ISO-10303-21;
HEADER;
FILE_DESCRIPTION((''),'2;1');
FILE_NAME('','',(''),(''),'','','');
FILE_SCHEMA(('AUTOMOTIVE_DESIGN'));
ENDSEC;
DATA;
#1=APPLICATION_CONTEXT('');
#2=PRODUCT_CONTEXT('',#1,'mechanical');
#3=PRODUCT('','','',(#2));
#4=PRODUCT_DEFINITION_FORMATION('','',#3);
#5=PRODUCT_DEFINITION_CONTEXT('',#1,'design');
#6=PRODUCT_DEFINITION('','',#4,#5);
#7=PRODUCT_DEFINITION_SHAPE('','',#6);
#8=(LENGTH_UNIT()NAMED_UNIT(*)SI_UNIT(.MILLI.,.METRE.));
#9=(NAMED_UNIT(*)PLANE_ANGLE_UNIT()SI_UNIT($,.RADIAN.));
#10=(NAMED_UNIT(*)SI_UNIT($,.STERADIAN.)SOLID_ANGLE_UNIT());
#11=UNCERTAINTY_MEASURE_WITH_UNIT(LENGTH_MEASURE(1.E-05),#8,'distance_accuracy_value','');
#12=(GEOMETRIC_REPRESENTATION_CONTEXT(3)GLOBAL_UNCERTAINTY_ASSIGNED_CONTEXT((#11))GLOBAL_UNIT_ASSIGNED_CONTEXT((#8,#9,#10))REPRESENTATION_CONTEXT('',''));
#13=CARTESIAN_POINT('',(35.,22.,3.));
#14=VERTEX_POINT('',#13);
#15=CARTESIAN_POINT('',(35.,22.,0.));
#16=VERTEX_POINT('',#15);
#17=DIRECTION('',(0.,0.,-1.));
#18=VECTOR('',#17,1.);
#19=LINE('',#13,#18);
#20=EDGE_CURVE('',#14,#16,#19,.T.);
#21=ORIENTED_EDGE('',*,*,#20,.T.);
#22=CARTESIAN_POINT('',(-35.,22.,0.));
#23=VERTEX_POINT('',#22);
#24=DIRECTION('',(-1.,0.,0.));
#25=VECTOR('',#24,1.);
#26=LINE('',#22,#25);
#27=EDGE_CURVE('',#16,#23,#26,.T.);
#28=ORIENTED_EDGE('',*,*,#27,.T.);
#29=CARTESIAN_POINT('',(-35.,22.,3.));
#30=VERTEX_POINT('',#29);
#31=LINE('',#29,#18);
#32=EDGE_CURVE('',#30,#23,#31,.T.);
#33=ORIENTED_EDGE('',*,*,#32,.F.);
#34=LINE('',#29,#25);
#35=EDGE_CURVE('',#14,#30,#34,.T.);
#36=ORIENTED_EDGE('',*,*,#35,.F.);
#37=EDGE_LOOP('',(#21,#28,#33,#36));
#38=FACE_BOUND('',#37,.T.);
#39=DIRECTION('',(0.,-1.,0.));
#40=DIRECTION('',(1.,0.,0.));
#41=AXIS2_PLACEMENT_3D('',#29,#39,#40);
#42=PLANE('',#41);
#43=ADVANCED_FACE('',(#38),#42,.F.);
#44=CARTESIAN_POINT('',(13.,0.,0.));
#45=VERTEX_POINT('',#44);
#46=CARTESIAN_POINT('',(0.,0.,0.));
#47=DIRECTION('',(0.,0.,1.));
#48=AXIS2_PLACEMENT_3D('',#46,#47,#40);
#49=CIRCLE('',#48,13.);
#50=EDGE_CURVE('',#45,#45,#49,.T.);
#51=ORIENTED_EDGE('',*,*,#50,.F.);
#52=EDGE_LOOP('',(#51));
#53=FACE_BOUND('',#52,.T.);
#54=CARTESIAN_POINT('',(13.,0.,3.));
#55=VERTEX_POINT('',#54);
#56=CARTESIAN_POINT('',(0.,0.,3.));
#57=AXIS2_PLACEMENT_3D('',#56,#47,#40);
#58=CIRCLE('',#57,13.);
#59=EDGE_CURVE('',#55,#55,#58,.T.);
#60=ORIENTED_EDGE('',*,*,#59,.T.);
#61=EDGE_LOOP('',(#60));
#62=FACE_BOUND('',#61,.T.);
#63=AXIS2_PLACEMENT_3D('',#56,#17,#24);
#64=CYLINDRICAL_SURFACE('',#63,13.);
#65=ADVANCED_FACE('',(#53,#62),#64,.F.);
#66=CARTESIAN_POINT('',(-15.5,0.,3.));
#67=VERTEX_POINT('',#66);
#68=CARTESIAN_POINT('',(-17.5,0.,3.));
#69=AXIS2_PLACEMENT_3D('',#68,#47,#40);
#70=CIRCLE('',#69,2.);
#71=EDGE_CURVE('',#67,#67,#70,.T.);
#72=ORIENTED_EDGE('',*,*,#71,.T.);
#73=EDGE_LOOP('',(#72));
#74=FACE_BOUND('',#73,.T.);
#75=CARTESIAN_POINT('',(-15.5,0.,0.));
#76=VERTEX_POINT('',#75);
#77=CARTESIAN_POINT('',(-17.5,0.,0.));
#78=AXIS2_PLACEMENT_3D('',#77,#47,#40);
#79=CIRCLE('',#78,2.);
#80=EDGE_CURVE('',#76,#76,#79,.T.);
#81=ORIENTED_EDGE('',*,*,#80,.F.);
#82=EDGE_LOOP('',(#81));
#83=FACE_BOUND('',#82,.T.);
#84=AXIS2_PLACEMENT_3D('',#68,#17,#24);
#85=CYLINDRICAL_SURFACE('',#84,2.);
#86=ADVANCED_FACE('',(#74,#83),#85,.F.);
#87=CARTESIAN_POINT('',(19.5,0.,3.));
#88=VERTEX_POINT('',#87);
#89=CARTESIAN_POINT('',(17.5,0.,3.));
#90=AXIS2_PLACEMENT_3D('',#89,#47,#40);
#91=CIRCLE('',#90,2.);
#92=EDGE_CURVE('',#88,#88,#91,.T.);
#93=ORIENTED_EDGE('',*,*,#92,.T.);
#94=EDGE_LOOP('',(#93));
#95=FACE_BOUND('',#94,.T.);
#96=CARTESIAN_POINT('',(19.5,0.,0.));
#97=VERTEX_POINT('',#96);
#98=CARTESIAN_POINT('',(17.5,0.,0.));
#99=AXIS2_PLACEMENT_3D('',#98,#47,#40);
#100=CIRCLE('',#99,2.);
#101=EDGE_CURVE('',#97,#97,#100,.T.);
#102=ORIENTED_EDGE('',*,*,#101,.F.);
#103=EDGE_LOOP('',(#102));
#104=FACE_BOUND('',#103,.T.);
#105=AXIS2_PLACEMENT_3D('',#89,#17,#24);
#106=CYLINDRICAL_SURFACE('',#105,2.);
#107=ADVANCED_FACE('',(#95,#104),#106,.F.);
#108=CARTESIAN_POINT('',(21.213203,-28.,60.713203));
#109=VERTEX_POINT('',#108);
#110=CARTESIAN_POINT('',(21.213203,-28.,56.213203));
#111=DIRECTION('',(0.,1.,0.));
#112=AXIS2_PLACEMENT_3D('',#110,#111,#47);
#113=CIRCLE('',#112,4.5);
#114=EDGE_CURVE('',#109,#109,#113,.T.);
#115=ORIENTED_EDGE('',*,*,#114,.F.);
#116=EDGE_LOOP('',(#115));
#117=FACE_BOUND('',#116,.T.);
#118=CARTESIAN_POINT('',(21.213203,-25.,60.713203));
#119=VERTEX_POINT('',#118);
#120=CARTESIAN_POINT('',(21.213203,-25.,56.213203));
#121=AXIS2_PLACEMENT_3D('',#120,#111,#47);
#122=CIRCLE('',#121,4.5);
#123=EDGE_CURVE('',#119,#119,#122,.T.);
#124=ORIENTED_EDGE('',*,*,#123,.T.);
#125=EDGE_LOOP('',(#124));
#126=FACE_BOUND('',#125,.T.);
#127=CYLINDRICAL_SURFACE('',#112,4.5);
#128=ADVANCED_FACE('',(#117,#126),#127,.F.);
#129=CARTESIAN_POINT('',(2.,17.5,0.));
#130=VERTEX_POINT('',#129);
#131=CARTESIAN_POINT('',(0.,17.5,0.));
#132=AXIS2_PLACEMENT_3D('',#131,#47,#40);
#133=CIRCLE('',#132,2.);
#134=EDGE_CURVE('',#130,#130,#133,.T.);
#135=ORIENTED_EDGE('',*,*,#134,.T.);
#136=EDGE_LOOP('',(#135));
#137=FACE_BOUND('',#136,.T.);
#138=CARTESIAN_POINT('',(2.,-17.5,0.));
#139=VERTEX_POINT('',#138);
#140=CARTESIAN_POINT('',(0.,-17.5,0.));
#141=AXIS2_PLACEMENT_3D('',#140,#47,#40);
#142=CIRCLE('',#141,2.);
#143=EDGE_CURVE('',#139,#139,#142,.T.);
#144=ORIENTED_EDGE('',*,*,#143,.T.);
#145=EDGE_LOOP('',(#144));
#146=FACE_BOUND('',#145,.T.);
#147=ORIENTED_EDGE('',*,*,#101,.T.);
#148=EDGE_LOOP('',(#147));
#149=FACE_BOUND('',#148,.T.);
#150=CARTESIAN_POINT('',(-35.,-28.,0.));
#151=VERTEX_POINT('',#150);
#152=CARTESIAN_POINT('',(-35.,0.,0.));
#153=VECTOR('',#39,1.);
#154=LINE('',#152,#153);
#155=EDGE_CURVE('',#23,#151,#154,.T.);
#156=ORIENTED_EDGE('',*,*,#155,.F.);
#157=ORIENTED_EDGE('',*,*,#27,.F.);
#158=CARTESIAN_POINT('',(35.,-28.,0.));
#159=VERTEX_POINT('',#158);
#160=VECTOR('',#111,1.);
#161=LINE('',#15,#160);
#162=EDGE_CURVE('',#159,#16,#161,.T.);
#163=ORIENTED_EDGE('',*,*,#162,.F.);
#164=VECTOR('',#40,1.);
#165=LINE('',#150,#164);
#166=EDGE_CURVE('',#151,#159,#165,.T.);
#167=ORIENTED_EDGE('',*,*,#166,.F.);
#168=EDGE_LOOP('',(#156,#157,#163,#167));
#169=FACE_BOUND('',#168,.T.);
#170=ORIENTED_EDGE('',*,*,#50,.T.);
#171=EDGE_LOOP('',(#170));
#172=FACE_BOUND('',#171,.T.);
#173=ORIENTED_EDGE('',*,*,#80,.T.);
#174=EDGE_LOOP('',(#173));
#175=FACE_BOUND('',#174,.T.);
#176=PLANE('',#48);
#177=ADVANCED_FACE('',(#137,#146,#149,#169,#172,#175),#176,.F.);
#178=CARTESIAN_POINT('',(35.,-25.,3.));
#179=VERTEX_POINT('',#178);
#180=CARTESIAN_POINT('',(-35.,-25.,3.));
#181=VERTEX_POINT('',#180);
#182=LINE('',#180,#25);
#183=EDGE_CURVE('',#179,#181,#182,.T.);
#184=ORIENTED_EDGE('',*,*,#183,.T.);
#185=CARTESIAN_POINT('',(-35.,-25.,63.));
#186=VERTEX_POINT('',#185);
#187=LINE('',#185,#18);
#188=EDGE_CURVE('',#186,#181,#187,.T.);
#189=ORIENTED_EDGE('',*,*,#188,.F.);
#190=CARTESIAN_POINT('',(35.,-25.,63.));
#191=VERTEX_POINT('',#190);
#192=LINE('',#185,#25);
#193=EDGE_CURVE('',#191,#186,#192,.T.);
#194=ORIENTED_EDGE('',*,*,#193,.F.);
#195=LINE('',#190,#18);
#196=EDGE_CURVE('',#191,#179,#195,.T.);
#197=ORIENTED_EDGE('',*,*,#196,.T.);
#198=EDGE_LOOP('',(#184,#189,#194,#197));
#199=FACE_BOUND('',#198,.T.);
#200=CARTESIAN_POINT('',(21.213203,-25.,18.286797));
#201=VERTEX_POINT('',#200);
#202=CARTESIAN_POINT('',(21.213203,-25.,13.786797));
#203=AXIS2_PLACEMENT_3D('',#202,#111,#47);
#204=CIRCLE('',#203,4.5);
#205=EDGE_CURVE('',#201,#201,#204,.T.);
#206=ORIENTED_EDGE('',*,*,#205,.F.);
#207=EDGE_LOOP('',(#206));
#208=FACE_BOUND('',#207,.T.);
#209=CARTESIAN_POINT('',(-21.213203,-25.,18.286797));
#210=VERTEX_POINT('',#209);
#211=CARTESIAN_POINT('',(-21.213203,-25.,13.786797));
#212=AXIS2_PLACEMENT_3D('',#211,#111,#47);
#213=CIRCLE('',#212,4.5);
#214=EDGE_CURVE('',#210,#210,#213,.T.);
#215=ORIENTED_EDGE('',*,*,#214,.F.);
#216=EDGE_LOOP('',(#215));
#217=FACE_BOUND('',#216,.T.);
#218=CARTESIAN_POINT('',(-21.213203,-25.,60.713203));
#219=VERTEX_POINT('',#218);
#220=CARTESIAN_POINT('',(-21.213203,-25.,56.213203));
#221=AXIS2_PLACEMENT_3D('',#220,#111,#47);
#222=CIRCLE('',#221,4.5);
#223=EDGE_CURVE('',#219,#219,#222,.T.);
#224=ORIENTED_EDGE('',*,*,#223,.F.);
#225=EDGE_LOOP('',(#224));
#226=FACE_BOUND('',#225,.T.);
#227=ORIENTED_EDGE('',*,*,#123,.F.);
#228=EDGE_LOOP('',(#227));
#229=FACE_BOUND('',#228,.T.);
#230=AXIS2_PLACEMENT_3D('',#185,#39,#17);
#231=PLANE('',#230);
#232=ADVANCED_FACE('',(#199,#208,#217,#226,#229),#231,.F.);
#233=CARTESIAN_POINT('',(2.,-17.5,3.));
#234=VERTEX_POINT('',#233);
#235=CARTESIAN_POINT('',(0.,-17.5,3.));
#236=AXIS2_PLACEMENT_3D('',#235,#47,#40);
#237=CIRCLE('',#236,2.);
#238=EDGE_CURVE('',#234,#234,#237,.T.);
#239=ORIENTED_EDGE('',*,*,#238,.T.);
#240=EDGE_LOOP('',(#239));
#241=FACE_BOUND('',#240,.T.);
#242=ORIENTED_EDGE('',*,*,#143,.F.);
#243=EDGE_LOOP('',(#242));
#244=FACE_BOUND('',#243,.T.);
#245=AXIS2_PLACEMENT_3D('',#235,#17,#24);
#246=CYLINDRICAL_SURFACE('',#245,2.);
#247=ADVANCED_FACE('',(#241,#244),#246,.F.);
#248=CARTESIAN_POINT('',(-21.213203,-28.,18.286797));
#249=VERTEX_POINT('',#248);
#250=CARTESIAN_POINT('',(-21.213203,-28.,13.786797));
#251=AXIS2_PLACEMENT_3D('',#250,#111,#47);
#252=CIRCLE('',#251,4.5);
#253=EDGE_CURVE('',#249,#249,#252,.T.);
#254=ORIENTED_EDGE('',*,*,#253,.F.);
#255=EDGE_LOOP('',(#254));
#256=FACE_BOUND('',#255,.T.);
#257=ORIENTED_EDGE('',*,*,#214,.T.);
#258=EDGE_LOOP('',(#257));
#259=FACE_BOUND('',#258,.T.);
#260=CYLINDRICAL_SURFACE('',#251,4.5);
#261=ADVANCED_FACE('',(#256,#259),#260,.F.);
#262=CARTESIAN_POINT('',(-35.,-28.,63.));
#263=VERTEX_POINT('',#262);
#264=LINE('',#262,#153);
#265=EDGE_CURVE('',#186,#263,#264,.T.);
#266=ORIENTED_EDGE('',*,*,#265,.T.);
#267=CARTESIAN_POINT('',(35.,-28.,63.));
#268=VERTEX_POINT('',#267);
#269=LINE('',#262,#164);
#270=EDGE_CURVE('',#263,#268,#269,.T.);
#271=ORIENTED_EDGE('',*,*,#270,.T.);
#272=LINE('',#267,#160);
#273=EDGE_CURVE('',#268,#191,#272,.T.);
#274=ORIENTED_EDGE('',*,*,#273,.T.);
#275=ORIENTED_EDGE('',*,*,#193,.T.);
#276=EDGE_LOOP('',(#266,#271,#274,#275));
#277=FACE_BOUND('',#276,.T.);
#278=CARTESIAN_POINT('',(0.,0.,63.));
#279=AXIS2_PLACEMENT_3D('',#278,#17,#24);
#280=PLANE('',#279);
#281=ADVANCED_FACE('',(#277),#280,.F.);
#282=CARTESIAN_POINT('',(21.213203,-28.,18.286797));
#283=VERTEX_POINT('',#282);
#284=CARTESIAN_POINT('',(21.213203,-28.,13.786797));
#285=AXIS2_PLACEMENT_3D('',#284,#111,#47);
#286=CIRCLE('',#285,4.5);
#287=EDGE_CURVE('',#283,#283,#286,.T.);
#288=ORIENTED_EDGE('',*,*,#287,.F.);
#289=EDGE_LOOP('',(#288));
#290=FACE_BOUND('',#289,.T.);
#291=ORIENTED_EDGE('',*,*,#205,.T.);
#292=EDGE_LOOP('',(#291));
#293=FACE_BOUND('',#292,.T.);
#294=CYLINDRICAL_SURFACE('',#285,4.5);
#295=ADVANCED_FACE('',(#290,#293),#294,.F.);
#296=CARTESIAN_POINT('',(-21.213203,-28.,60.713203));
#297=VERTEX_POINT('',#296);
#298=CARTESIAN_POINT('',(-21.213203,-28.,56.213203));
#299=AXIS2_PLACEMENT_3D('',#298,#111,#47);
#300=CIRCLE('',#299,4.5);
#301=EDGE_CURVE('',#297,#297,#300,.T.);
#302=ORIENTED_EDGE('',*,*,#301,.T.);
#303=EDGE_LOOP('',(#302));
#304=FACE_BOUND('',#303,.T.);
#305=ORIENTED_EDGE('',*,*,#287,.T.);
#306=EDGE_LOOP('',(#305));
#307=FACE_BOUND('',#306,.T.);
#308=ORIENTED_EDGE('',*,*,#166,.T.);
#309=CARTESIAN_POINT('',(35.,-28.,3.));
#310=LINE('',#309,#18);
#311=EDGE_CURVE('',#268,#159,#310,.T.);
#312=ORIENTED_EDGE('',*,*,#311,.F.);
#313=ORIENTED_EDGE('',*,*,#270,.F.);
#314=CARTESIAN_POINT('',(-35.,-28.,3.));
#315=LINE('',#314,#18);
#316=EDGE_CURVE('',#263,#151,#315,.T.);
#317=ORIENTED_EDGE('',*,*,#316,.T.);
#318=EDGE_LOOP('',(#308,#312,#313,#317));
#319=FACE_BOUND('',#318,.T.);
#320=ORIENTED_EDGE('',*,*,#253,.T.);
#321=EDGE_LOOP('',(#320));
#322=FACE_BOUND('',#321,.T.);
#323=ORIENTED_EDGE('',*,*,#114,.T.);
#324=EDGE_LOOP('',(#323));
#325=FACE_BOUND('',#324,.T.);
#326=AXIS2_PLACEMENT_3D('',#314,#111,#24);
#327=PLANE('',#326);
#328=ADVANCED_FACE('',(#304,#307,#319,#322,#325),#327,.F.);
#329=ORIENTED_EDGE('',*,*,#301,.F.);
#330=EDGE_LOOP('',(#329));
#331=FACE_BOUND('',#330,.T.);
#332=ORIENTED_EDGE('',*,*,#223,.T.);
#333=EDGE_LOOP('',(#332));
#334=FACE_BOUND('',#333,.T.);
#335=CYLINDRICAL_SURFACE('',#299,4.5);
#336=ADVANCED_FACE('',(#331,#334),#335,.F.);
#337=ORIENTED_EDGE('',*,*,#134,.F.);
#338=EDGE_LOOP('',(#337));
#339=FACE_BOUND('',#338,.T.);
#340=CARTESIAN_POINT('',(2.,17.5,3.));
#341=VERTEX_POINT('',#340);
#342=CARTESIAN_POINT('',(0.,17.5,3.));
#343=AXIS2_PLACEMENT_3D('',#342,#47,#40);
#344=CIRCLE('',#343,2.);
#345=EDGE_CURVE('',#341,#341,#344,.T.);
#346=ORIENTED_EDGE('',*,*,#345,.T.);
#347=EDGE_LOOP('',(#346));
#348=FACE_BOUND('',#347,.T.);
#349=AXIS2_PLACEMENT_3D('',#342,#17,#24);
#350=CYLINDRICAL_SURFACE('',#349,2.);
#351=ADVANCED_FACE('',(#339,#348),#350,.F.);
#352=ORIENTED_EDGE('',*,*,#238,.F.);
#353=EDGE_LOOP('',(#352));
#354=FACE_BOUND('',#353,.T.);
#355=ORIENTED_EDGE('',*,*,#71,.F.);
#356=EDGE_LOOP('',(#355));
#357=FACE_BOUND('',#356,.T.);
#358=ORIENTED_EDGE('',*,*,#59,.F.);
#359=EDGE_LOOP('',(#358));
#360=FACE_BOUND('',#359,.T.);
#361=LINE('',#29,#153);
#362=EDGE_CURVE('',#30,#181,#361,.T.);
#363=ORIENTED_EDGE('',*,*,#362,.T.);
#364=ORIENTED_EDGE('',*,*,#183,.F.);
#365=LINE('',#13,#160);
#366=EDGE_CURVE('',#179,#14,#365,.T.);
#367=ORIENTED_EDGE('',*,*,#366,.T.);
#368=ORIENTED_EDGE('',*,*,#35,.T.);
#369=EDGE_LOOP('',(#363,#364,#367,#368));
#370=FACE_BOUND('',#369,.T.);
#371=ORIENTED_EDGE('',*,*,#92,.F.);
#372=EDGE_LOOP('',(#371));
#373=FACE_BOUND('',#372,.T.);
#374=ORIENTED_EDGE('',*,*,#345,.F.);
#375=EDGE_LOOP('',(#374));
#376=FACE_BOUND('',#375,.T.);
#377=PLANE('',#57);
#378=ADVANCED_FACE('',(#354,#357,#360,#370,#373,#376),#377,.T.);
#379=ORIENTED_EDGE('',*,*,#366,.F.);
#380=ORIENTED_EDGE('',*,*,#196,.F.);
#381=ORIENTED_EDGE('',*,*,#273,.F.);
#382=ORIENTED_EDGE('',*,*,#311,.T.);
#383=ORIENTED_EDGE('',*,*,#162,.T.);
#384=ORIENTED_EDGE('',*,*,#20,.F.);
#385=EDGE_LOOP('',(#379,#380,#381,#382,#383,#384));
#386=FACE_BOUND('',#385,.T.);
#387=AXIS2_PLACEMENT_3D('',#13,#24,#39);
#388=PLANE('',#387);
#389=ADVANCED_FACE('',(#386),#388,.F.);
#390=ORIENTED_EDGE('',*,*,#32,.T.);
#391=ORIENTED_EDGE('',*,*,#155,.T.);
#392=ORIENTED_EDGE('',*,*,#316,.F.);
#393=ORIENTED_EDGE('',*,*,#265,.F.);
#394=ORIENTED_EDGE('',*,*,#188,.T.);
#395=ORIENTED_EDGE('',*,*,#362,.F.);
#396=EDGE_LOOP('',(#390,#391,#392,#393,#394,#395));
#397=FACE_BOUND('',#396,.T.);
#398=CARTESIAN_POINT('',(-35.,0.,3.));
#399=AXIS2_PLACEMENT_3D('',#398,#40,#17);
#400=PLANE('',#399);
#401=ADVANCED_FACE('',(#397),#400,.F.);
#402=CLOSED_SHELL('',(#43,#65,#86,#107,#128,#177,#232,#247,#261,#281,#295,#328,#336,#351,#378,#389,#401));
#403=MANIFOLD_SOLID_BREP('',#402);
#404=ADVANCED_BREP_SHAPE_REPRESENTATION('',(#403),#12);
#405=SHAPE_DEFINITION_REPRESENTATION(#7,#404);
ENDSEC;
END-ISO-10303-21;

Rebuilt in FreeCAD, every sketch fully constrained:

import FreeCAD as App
import Part
import Sketcher
Q = App.Units.Quantity

doc = App.newDocument("Part")
body = doc.addObject("PartDesign::Body", "Body")

# Sketch on XY plane
sketch1 = body.newObject("Sketcher::SketchObject", "Sketch")
sketch1.AttachmentSupport = (doc.getObject("XY_Plane"), [""])
sketch1.MapMode = "FlatFace"
sketch1.addGeometry([
    Part.LineSegment(App.Vector(35, 22, 0), App.Vector(-35, 22, 0)),  # 0
    Part.LineSegment(App.Vector(-35, 22, 0), App.Vector(-35, -28, 0)),  # 1
    Part.LineSegment(App.Vector(-35, -28, 0), App.Vector(35, -28, 0)),  # 2
    Part.LineSegment(App.Vector(35, -28, 0), App.Vector(35, 22, 0)),  # 3
    Part.Circle(App.Vector(0, -17.5, 0), App.Vector(0, 0, 1), 2),  # 4
    Part.Circle(App.Vector(17.5, 0, 0), App.Vector(0, 0, 1), 2),  # 5
    Part.Circle(App.Vector(0, 0, 0), App.Vector(0, 0, 1), 13),  # 6
    Part.Circle(App.Vector(-17.5, 0, 0), App.Vector(0, 0, 1), 2),  # 7
    Part.Circle(App.Vector(0, 17.5, 0), App.Vector(0, 0, 1), 2),  # 8
], False)
sketch1.addConstraint([
    Sketcher.Constraint("Coincident", 0, 2, 1, 1),
    Sketcher.Constraint("Coincident", 1, 2, 2, 1),
    Sketcher.Constraint("Coincident", 2, 2, 3, 1),
    Sketcher.Constraint("Coincident", 3, 2, 0, 1),
    Sketcher.Constraint("Horizontal", 0),
    Sketcher.Constraint("Vertical", 1),
    Sketcher.Constraint("Horizontal", 2),
    Sketcher.Constraint("Vertical", 3),
    Sketcher.Constraint("Coincident", 6, 3, -1, 1),
    Sketcher.Constraint("Equal", 4, 5),
    Sketcher.Constraint("Equal", 5, 7),
    Sketcher.Constraint("Equal", 7, 8),
    Sketcher.Constraint("Symmetric", 5, 3, 7, 3, -1, 1),
    Sketcher.Constraint("Symmetric", 4, 3, 8, 3, -1, 1),
    Sketcher.Constraint("PointOnObject", 4, 3, -2),
    Sketcher.Constraint("PointOnObject", 5, 3, -1),
    Sketcher.Constraint("Diameter", 4, Q("4 mm")),
    Sketcher.Constraint("Diameter", 6, Q("26 mm")),
    Sketcher.Constraint("DistanceX", 0, 2, 0, 1, Q("70 mm")),
    Sketcher.Constraint("DistanceY", 1, 2, 1, 1, Q("50 mm")),
    Sketcher.Constraint("DistanceX", 0, 2, -1, 1, Q("35 mm")),
    Sketcher.Constraint("DistanceY", -1, 1, 0, 2, Q("22 mm")),
    Sketcher.Constraint("DistanceX", 7, 3, 5, 3, Q("35 mm")),
    Sketcher.Constraint("DistanceY", 4, 3, 8, 3, Q("35 mm")),
])
pad1 = body.newObject("PartDesign::Pad", "Pad")
pad1.Profile = sketch1
pad1.Length = 3

# Sketch on XY plane
sketch2 = body.newObject("Sketcher::SketchObject", "Sketch001")
sketch2.AttachmentSupport = (doc.getObject("XY_Plane"), [""])
sketch2.MapMode = "FlatFace"
sketch2.AttachmentOffset = App.Placement(App.Vector(0, 0, 3), App.Rotation())
sketch2.addGeometry([
    Part.LineSegment(App.Vector(-35, -25, 0), App.Vector(-35, -28, 0)),
    Part.LineSegment(App.Vector(-35, -28, 0), App.Vector(35, -28, 0)),
    Part.LineSegment(App.Vector(35, -28, 0), App.Vector(35, -25, 0)),
    Part.LineSegment(App.Vector(35, -25, 0), App.Vector(-35, -25, 0)),
], False)
sketch2.addConstraint([
    Sketcher.Constraint("Coincident", 0, 2, 1, 1),
    Sketcher.Constraint("Coincident", 1, 2, 2, 1),
    Sketcher.Constraint("Coincident", 2, 2, 3, 1),
    Sketcher.Constraint("Coincident", 3, 2, 0, 1),
    Sketcher.Constraint("Vertical", 0),
    Sketcher.Constraint("Horizontal", 1),
    Sketcher.Constraint("Vertical", 2),
    Sketcher.Constraint("Horizontal", 3),
    Sketcher.Constraint("DistanceX", 1, 1, 1, 2, Q("70 mm")),
    Sketcher.Constraint("DistanceY", 0, 2, 0, 1, Q("3 mm")),
    Sketcher.Constraint("DistanceX", 0, 2, -1, 1, Q("35 mm")),
    Sketcher.Constraint("DistanceY", 0, 2, -1, 1, Q("28 mm")),
])
pad2 = body.newObject("PartDesign::Pad", "Pad001")
pad2.Profile = sketch2
pad2.Length = 60

# Sketch on XZ plane
sketch3 = body.newObject("Sketcher::SketchObject", "Sketch002")
sketch3.AttachmentSupport = (doc.getObject("XZ_Plane"), [""])
sketch3.MapMode = "FlatFace"
sketch3.AttachmentOffset = App.Placement(App.Vector(0, 0, 25), App.Rotation())
sketch3.addGeometry([
    Part.Circle(App.Vector(21.2, 13.8, 0), App.Vector(0, 0, 1), 4.5),
    Part.Circle(App.Vector(21.2, 56.2, 0), App.Vector(0, 0, 1), 4.5),
    Part.Circle(App.Vector(-21.2, 56.2, 0), App.Vector(0, 0, 1), 4.5),
    Part.Circle(App.Vector(-21.2, 13.8, 0), App.Vector(0, 0, 1), 4.5),
], False)
sketch3.addConstraint([
    Sketcher.Constraint("Equal", 0, 1),
    Sketcher.Constraint("Equal", 1, 2),
    Sketcher.Constraint("Equal", 2, 3),
    Sketcher.Constraint("Symmetric", 1, 3, 2, 3, -2),
    Sketcher.Constraint("Symmetric", 0, 3, 3, 3, -2),
    Sketcher.Constraint("Vertical", 0, 3, 1, 3),
    Sketcher.Constraint("Diameter", 0, Q("9 mm")),
    Sketcher.Constraint("DistanceX", -1, 1, 0, 3, Q("21.213203 mm")),
    Sketcher.Constraint("DistanceY", -1, 1, 0, 3, Q("13.786797 mm")),
    Sketcher.Constraint("DistanceY", -1, 1, 1, 3, Q("56.213203 mm")),
])
pocket1 = body.newObject("PartDesign::Pocket", "Pocket")
pocket1.Profile = sketch3
pocket1.Type = "ThroughAll"
pocket1.Reversed = True

doc.recompute()
